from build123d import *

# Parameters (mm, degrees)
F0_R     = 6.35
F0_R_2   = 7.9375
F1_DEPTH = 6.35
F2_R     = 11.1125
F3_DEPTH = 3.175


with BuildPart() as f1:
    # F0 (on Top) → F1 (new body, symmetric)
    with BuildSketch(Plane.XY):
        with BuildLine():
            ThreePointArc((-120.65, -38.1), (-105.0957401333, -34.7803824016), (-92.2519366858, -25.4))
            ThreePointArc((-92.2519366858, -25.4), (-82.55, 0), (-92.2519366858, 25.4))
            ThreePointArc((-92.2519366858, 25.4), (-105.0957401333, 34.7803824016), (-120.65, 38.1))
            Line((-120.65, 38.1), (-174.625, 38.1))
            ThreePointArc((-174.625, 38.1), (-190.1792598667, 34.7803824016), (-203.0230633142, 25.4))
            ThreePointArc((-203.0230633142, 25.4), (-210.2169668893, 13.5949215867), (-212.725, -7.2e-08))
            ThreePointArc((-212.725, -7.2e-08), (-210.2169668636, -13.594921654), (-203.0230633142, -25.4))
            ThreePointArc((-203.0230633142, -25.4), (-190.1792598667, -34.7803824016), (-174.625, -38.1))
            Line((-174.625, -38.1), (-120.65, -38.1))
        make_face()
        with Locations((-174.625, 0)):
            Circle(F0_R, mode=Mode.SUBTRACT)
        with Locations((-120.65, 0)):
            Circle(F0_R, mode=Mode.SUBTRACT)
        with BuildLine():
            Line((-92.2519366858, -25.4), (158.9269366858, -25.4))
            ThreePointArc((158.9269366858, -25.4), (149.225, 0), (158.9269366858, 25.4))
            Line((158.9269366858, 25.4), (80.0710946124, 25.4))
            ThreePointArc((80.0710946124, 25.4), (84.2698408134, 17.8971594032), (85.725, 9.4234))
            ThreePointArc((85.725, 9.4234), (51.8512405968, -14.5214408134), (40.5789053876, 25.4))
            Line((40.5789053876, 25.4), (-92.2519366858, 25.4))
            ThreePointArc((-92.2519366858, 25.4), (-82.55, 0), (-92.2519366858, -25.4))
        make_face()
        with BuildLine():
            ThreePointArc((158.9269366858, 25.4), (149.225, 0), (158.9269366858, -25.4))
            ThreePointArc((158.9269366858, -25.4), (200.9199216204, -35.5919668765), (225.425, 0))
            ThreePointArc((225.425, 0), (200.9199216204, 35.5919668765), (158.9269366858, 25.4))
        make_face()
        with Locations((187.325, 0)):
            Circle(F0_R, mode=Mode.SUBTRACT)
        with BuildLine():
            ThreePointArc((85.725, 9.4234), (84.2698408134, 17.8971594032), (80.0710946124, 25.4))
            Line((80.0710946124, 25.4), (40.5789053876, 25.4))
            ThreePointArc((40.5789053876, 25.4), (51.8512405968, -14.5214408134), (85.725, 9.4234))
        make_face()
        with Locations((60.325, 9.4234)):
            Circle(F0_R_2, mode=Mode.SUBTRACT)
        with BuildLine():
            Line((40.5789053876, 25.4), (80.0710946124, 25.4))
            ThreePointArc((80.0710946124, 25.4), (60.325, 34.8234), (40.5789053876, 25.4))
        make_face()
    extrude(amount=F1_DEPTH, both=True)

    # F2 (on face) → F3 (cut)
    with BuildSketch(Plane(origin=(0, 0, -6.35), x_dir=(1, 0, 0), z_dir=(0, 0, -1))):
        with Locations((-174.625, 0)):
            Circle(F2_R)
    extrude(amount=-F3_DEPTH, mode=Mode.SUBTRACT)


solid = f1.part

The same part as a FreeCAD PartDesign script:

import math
import FreeCAD as App
import Part
import Sketcher

V = App.Vector
Q = App.Units.Quantity

doc = App.newDocument("Part")
body = doc.addObject("PartDesign::Body", "Body")

sketch1 = doc.addObject("Sketcher::SketchObject", "Sketch")
body.addObject(sketch1)
sketch1.AttachmentSupport = (doc.XY_Plane, [""])
sketch1.MapMode = "FlatFace"
sketch1.addGeometry([
    Part.ArcOfCircle(Part.Circle(V(-120.65, 0, 0), V(0, 0, 1), 38.1), math.radians(-90), math.radians(-41.810315)),
    Part.LineSegment(V(-92.251937, -25.4, 0), V(158.926937, -25.4, 0)),
    Part.ArcOfCircle(Part.Circle(V(187.325, 0, 0), V(0, 0, 1), 38.1), math.radians(-138.189685), math.radians(0)),
    Part.ArcOfCircle(Part.Circle(V(187.325, 0, 0), V(0, 0, 1), 38.1), math.radians(0), math.radians(138.189685)),
    Part.LineSegment(V(158.926937, 25.4, 0), V(80.071095, 25.4, 0)),
    Part.ArcOfCircle(Part.Circle(V(60.325, 9.4234, 0), V(0, 0, 1), 25.4), math.radians(38.976383), math.radians(141.023617)),
    Part.LineSegment(V(40.578905, 25.4, 0), V(-92.251937, 25.4, 0)),
    Part.ArcOfCircle(Part.Circle(V(-120.65, 0, 0), V(0, 0, 1), 38.1), math.radians(41.810315), math.radians(90)),
    Part.LineSegment(V(-120.65, 38.1, 0), V(-174.625, 38.1, 0)),
    Part.ArcOfCircle(Part.Circle(V(-174.625, 0, 0), V(0, 0, 1), 38.1), math.radians(90), math.radians(138.189685)),
    Part.ArcOfCircle(Part.Circle(V(-174.625, 0, 0), V(0, 0, 1), 38.1), math.radians(138.189685), math.radians(180)),
    Part.ArcOfCircle(Part.Circle(V(-174.625, 0, 0), V(0, 0, 1), 38.1), math.radians(-180), math.radians(-138.189685)),
    Part.ArcOfCircle(Part.Circle(V(-174.625, 0, 0), V(0, 0, 1), 38.1), math.radians(-138.189685), math.radians(-90)),
    Part.LineSegment(V(-174.625, -38.1, 0), V(-120.65, -38.1, 0)),
    Part.Circle(V(-174.625, 0, 0), V(0, 0, 1), 6.35),
    Part.Circle(V(-120.65, 0, 0), V(0, 0, 1), 6.35),
    Part.Circle(V(187.325, 0, 0), V(0, 0, 1), 6.35),
    Part.Circle(V(60.325, 9.4234, 0), V(0, 0, 1), 7.9375),
], False)
sketch1.addConstraint([
    Sketcher.Constraint("Coincident", 0, 2, 1, 1),
    Sketcher.Constraint("Coincident", 1, 2, 2, 1),
    Sketcher.Constraint("Tangent", 2, 2, 3, 1),
    Sketcher.Constraint("Coincident", 3, 2, 4, 1),
    Sketcher.Constraint("Coincident", 4, 2, 5, 1),
    Sketcher.Constraint("Coincident", 5, 2, 6, 1),
    Sketcher.Constraint("Coincident", 6, 2, 7, 1),
    Sketcher.Constraint("Tangent", 7, 2, 8, 1),
    Sketcher.Constraint("Tangent", 8, 2, 9, 1),
    Sketcher.Constraint("Tangent", 9, 2, 10, 1),
    Sketcher.Constraint("Tangent", 10, 2, 11, 1),
    Sketcher.Constraint("Tangent", 11, 2, 12, 1),
    Sketcher.Constraint("Tangent", 12, 2, 13, 1),
    Sketcher.Constraint("Tangent", 13, 2, 0, 1),
    Sketcher.Constraint("Horizontal", 1),
    Sketcher.Constraint("Horizontal", 4),
    Sketcher.Constraint("Horizontal", 6),
    Sketcher.Constraint("Horizontal", 8),
    Sketcher.Constraint("Horizontal", 13),
    Sketcher.Constraint("Coincident", 7, 3, 0, 3),
    Sketcher.Constraint("Coincident", 11, 3, 9, 3),
    Sketcher.Constraint("Coincident", 14, 3, 9, 3),
    Sketcher.Constraint("Coincident", 15, 3, 0, 3),
    Sketcher.Constraint("Coincident", 16, 3, 2, 3),
    Sketcher.Constraint("Coincident", 17, 3, 5, 3),
    Sketcher.Constraint("Equal", 0, 2),
    Sketcher.Constraint("Equal", 2, 3),
    Sketcher.Constraint("Equal", 3, 7),
    Sketcher.Constraint("Equal", 7, 9),
    Sketcher.Constraint("Equal", 14, 15),
    Sketcher.Constraint("Equal", 15, 16),
    Sketcher.Constraint("Symmetric", 1, 2, 3, 2, -1),
    Sketcher.Constraint("Symmetric", 0, 2, 6, 2, -1),
    Sketcher.Constraint("PointOnObject", 2, 2, -1),
    Sketcher.Constraint("PointOnObject", 10, 2, -1),
    Sketcher.Constraint("Horizontal", 6, 2, 9, 2),
    Sketcher.Constraint("Horizontal", 1, 2, 11, 2),
    Sketcher.Constraint("Radius", 5, Q("1 in")),
    Sketcher.Constraint("Diameter", 14, Q("0.5 in")),
    Sketcher.Constraint("Radius", 0, Q("1.5 in")),
    Sketcher.Constraint("Diameter", 17, Q("0.625 in")),
    Sketcher.Constraint("DistanceY", 0, 2, -1, 1, Q("1 in")),
    Sketcher.Constraint("DistanceX", 5, 3, 2, 3, Q("5 in")),
    Sketcher.Constraint("DistanceX", 8, 2, 8, 1, Q("2.125 in")),
    Sketcher.Constraint("DistanceX", 0, 3, -1, 1, Q("4.75 in")),
    Sketcher.Constraint("DistanceX", 9, 3, 5, 3, Q("9.25 in")),
    Sketcher.Constraint("DistanceY", -1, 1, 5, 3, Q("0.371 in")),
])
pad1 = doc.addObject("PartDesign::Pad", "Pad")
body.addObject(pad1)
pad1.Profile = sketch1
pad1.Length = Q("0.5 in")
pad1.Midplane = True

sketch2 = doc.addObject("Sketcher::SketchObject", "Sketch001")
body.addObject(sketch2)
sketch2.AttachmentSupport = (doc.XY_Plane, [""])
sketch2.MapMode = "FlatFace"
sketch2.AttachmentOffset = App.Placement(V(0, 0, -0.25 * 25.4), App.Rotation())
sketch2.addGeometry(Part.Circle(V(-174.625, 0, 0), V(0, 0, 1), 11.1125), False)
sketch2.addConstraint([
    Sketcher.Constraint("PointOnObject", 0, 3, -1),
    Sketcher.Constraint("Diameter", 0, Q("0.875 in")),
    Sketcher.Constraint("DistanceX", 0, 3, -1, 1, Q("6.875 in")),
])
pocket1 = doc.addObject("PartDesign::Pocket", "Pocket")
body.addObject(pocket1)
pocket1.Profile = sketch2
pocket1.Length = Q("0.125 in")
pocket1.Reversed = True

doc.recompute()
